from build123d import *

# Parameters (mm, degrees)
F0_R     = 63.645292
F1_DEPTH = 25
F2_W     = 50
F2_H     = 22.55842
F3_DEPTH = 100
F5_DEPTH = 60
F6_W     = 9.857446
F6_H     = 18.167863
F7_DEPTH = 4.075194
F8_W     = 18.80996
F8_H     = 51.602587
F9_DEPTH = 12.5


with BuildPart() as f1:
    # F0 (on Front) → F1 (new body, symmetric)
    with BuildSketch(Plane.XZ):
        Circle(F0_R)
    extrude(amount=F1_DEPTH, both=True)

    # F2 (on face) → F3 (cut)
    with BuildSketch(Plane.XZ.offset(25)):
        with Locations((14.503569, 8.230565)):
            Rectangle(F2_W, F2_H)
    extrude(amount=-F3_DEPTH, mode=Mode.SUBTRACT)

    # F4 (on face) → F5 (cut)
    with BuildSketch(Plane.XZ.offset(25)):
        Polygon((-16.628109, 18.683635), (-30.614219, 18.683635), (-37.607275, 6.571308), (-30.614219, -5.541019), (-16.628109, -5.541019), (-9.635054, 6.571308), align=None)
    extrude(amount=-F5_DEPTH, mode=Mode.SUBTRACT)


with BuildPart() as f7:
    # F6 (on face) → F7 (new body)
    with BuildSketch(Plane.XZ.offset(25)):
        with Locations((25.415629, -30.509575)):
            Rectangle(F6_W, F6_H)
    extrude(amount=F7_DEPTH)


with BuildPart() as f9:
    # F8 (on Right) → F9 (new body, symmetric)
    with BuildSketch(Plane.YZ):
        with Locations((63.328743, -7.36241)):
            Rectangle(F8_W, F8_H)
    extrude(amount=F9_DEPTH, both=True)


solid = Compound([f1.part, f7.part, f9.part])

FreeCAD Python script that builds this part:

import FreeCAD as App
import Part
import Sketcher
from FreeCAD import Vector
Q = App.Units.Quantity

doc = App.newDocument("Part")
body = doc.addObject("PartDesign::Body", "Body")

sketch1 = body.newObject("Sketcher::SketchObject", "Sketch")
sketch1.AttachmentSupport = (doc.getObject("XZ_Plane"), [""])
sketch1.MapMode = "FlatFace"
sketch1.addGeometry(Part.Circle(Vector(0, 0, 0), Vector(0, 0, 1), 63.645292), False)
sketch1.addConstraint([
    Sketcher.Constraint("Coincident", 0, 3, -1, 1),
    Sketcher.Constraint("Diameter", 0, Q("127.290584 mm")),
])
pad1 = body.newObject("PartDesign::Pad", "Pad")
pad1.Profile = sketch1
pad1.Length = 50
pad1.Midplane = True

sketch2 = body.newObject("Sketcher::SketchObject", "Sketch001")
sketch2.AttachmentSupport = (doc.getObject("XZ_Plane"), [""])
sketch2.MapMode = "FlatFace"
sketch2.AttachmentOffset = App.Placement(Vector(0, 0, 25), App.Rotation())
sketch2.addGeometry([
    Part.LineSegment(Vector(-10.496431, 19.509775, 0), Vector(-10.496431, -3.048645, 0)),
    Part.LineSegment(Vector(-10.496431, -3.048645, 0), Vector(39.503569, -3.048645, 0)),
    Part.LineSegment(Vector(39.503569, -3.048645, 0), Vector(39.503569, 19.509775, 0)),
    Part.LineSegment(Vector(39.503569, 19.509775, 0), Vector(-10.496431, 19.509775, 0)),
], False)
sketch2.addConstraint([
    Sketcher.Constraint("Coincident", 0, 2, 1, 1),
    Sketcher.Constraint("Coincident", 1, 2, 2, 1),
    Sketcher.Constraint("Coincident", 2, 2, 3, 1),
    Sketcher.Constraint("Coincident", 3, 2, 0, 1),
    Sketcher.Constraint("Vertical", 0),
    Sketcher.Constraint("Horizontal", 1),
    Sketcher.Constraint("Vertical", 2),
    Sketcher.Constraint("Horizontal", 3),
    Sketcher.Constraint("DistanceX", 1, 1, 1, 2, Q("50 mm")),
    Sketcher.Constraint("DistanceY", 0, 2, 0, 1, Q("22.55842 mm")),
    Sketcher.Constraint("DistanceX", 0, 2, -1, 1, Q("10.496431 mm")),
    Sketcher.Constraint("DistanceY", 0, 2, -1, 1, Q("3.048645 mm")),
])
pocket1 = body.newObject("PartDesign::Pocket", "Pocket")
pocket1.Profile = sketch2
pocket1.Length = 100

sketch3 = body.newObject("Sketcher::SketchObject", "Sketch002")
sketch3.AttachmentSupport = (doc.getObject("XZ_Plane"), [""])
sketch3.MapMode = "FlatFace"
sketch3.AttachmentOffset = App.Placement(Vector(0, 0, 25), App.Rotation())
sketch3.addGeometry([
    Part.LineSegment(Vector(-16.628109, 18.683635, 0), Vector(-30.614219, 18.683635, 0)),
    Part.LineSegment(Vector(-30.614219, 18.683635, 0), Vector(-37.607275, 6.571308, 0)),
    Part.LineSegment(Vector(-37.607275, 6.571308, 0), Vector(-30.614219, -5.541019, 0)),
    Part.LineSegment(Vector(-30.614219, -5.541019, 0), Vector(-16.628109, -5.541019, 0)),
    Part.LineSegment(Vector(-16.628109, -5.541019, 0), Vector(-9.635054, 6.571308, 0)),
    Part.LineSegment(Vector(-9.635054, 6.571308, 0), Vector(-16.628109, 18.683635, 0)),
], False)
sketch3.addConstraint([
    Sketcher.Constraint("Coincident", 0, 2, 1, 1),
    Sketcher.Constraint("Coincident", 1, 2, 2, 1),
    Sketcher.Constraint("Coincident", 2, 2, 3, 1),
    Sketcher.Constraint("Coincident", 3, 2, 4, 1),
    Sketcher.Constraint("Coincident", 4, 2, 5, 1),
    Sketcher.Constraint("Coincident", 5, 2, 0, 1),
    Sketcher.Constraint("Horizontal", 0),
    Sketcher.Constraint("Horizontal", 3),
    Sketcher.Constraint("Parallel", 1, 4),
    Sketcher.Constraint("Parallel", 2, 5),
    Sketcher.Constraint("Horizontal", 1, 2, 4, 2),
    Sketcher.Constraint("Vertical", 0, 2, 2, 2),
    Sketcher.Constraint("Vertical", 3, 2, 5, 2),
    Sketcher.Constraint("Angle", 1, Q("-120.000003 deg")),
    Sketcher.Constraint("DistanceX", 0, 2, 0, 1, Q("13.98611 mm")),
    Sketcher.Constraint("Distance", 1, Q("13.986111 mm")),
    Sketcher.Constraint("DistanceX", 0, 2, -1, 1, Q("30.614219 mm")),
    Sketcher.Constraint("DistanceY", 2, 2, -1, 1, Q("5.541019 mm")),
])
pocket2 = body.newObject("PartDesign::Pocket", "Pocket001")
pocket2.Profile = sketch3
pocket2.Length = 60
body2 = doc.addObject("PartDesign::Body", "Body001")

sketch4 = body2.newObject("Sketcher::SketchObject", "Sketch003")
sketch4.AttachmentSupport = (doc.getObject("XZ_Plane001"), [""])
sketch4.MapMode = "FlatFace"
sketch4.AttachmentOffset = App.Placement(Vector(0, 0, 25), App.Rotation())
sketch4.addGeometry([
    Part.LineSegment(Vector(20.486906, -21.425643, 0), Vector(20.486906, -39.593506, 0)),
    Part.LineSegment(Vector(20.486906, -39.593506, 0), Vector(30.344352, -39.593506, 0)),
    Part.LineSegment(Vector(30.344352, -39.593506, 0), Vector(30.344352, -21.425643, 0)),
    Part.LineSegment(Vector(30.344352, -21.425643, 0), Vector(20.486906, -21.425643, 0)),
], False)
sketch4.addConstraint([
    Sketcher.Constraint("Coincident", 0, 2, 1, 1),
    Sketcher.Constraint("Coincident", 1, 2, 2, 1),
    Sketcher.Constraint("Coincident", 2, 2, 3, 1),
    Sketcher.Constraint("Coincident", 3, 2, 0, 1),
    Sketcher.Constraint("Vertical", 0),
    Sketcher.Constraint("Horizontal", 1),
    Sketcher.Constraint("Vertical", 2),
    Sketcher.Constraint("Horizontal", 3),
    Sketcher.Constraint("DistanceX", 1, 1, 1, 2, Q("9.857446 mm")),
    Sketcher.Constraint("DistanceY", 0, 2, 0, 1, Q("18.167863 mm")),
    Sketcher.Constraint("DistanceX", -1, 1, 0, 2, Q("20.486906 mm")),
    Sketcher.Constraint("DistanceY", 0, 2, -1, 1, Q("39.593506 mm")),
])
pad2 = body2.newObject("PartDesign::Pad", "Pad001")
pad2.Profile = sketch4
pad2.Length = 4.075194
body3 = doc.addObject("PartDesign::Body", "Body002")

sketch5 = body3.newObject("Sketcher::SketchObject", "Sketch004")
sketch5.AttachmentSupport = (doc.getObject("YZ_Plane002"), [""])
sketch5.MapMode = "FlatFace"
sketch5.addGeometry([
    Part.LineSegment(Vector(53.923763, 18.438883, 0), Vector(53.923763, -33.163703, 0)),
    Part.LineSegment(Vector(53.923763, -33.163703, 0), Vector(72.733723, -33.163703, 0)),
    Part.LineSegment(Vector(72.733723, -33.163703, 0), Vector(72.733723, 18.438883, 0)),
    Part.LineSegment(Vector(72.733723, 18.438883, 0), Vector(53.923763, 18.438883, 0)),
], False)
sketch5.addConstraint([
    Sketcher.Constraint("Coincident", 0, 2, 1, 1),
    Sketcher.Constraint("Coincident", 1, 2, 2, 1),
    Sketcher.Constraint("Coincident", 2, 2, 3, 1),
    Sketcher.Constraint("Coincident", 3, 2, 0, 1),
    Sketcher.Constraint("Vertical", 0),
    Sketcher.Constraint("Horizontal", 1),
    Sketcher.Constraint("Vertical", 2),
    Sketcher.Constraint("Horizontal", 3),
    Sketcher.Constraint("DistanceX", 1, 1, 1, 2, Q("18.80996 mm")),
    Sketcher.Constraint("DistanceY", 0, 2, 0, 1, Q("51.602587 mm")),
    Sketcher.Constraint("DistanceX", -1, 1, 0, 2, Q("53.923763 mm")),
    Sketcher.Constraint("DistanceY", 0, 2, -1, 1, Q("33.163703 mm")),
])
pad3 = body3.newObject("PartDesign::Pad", "Pad002")
pad3.Profile = sketch5
pad3.Length = 25
pad3.Midplane = True

doc.recompute()
